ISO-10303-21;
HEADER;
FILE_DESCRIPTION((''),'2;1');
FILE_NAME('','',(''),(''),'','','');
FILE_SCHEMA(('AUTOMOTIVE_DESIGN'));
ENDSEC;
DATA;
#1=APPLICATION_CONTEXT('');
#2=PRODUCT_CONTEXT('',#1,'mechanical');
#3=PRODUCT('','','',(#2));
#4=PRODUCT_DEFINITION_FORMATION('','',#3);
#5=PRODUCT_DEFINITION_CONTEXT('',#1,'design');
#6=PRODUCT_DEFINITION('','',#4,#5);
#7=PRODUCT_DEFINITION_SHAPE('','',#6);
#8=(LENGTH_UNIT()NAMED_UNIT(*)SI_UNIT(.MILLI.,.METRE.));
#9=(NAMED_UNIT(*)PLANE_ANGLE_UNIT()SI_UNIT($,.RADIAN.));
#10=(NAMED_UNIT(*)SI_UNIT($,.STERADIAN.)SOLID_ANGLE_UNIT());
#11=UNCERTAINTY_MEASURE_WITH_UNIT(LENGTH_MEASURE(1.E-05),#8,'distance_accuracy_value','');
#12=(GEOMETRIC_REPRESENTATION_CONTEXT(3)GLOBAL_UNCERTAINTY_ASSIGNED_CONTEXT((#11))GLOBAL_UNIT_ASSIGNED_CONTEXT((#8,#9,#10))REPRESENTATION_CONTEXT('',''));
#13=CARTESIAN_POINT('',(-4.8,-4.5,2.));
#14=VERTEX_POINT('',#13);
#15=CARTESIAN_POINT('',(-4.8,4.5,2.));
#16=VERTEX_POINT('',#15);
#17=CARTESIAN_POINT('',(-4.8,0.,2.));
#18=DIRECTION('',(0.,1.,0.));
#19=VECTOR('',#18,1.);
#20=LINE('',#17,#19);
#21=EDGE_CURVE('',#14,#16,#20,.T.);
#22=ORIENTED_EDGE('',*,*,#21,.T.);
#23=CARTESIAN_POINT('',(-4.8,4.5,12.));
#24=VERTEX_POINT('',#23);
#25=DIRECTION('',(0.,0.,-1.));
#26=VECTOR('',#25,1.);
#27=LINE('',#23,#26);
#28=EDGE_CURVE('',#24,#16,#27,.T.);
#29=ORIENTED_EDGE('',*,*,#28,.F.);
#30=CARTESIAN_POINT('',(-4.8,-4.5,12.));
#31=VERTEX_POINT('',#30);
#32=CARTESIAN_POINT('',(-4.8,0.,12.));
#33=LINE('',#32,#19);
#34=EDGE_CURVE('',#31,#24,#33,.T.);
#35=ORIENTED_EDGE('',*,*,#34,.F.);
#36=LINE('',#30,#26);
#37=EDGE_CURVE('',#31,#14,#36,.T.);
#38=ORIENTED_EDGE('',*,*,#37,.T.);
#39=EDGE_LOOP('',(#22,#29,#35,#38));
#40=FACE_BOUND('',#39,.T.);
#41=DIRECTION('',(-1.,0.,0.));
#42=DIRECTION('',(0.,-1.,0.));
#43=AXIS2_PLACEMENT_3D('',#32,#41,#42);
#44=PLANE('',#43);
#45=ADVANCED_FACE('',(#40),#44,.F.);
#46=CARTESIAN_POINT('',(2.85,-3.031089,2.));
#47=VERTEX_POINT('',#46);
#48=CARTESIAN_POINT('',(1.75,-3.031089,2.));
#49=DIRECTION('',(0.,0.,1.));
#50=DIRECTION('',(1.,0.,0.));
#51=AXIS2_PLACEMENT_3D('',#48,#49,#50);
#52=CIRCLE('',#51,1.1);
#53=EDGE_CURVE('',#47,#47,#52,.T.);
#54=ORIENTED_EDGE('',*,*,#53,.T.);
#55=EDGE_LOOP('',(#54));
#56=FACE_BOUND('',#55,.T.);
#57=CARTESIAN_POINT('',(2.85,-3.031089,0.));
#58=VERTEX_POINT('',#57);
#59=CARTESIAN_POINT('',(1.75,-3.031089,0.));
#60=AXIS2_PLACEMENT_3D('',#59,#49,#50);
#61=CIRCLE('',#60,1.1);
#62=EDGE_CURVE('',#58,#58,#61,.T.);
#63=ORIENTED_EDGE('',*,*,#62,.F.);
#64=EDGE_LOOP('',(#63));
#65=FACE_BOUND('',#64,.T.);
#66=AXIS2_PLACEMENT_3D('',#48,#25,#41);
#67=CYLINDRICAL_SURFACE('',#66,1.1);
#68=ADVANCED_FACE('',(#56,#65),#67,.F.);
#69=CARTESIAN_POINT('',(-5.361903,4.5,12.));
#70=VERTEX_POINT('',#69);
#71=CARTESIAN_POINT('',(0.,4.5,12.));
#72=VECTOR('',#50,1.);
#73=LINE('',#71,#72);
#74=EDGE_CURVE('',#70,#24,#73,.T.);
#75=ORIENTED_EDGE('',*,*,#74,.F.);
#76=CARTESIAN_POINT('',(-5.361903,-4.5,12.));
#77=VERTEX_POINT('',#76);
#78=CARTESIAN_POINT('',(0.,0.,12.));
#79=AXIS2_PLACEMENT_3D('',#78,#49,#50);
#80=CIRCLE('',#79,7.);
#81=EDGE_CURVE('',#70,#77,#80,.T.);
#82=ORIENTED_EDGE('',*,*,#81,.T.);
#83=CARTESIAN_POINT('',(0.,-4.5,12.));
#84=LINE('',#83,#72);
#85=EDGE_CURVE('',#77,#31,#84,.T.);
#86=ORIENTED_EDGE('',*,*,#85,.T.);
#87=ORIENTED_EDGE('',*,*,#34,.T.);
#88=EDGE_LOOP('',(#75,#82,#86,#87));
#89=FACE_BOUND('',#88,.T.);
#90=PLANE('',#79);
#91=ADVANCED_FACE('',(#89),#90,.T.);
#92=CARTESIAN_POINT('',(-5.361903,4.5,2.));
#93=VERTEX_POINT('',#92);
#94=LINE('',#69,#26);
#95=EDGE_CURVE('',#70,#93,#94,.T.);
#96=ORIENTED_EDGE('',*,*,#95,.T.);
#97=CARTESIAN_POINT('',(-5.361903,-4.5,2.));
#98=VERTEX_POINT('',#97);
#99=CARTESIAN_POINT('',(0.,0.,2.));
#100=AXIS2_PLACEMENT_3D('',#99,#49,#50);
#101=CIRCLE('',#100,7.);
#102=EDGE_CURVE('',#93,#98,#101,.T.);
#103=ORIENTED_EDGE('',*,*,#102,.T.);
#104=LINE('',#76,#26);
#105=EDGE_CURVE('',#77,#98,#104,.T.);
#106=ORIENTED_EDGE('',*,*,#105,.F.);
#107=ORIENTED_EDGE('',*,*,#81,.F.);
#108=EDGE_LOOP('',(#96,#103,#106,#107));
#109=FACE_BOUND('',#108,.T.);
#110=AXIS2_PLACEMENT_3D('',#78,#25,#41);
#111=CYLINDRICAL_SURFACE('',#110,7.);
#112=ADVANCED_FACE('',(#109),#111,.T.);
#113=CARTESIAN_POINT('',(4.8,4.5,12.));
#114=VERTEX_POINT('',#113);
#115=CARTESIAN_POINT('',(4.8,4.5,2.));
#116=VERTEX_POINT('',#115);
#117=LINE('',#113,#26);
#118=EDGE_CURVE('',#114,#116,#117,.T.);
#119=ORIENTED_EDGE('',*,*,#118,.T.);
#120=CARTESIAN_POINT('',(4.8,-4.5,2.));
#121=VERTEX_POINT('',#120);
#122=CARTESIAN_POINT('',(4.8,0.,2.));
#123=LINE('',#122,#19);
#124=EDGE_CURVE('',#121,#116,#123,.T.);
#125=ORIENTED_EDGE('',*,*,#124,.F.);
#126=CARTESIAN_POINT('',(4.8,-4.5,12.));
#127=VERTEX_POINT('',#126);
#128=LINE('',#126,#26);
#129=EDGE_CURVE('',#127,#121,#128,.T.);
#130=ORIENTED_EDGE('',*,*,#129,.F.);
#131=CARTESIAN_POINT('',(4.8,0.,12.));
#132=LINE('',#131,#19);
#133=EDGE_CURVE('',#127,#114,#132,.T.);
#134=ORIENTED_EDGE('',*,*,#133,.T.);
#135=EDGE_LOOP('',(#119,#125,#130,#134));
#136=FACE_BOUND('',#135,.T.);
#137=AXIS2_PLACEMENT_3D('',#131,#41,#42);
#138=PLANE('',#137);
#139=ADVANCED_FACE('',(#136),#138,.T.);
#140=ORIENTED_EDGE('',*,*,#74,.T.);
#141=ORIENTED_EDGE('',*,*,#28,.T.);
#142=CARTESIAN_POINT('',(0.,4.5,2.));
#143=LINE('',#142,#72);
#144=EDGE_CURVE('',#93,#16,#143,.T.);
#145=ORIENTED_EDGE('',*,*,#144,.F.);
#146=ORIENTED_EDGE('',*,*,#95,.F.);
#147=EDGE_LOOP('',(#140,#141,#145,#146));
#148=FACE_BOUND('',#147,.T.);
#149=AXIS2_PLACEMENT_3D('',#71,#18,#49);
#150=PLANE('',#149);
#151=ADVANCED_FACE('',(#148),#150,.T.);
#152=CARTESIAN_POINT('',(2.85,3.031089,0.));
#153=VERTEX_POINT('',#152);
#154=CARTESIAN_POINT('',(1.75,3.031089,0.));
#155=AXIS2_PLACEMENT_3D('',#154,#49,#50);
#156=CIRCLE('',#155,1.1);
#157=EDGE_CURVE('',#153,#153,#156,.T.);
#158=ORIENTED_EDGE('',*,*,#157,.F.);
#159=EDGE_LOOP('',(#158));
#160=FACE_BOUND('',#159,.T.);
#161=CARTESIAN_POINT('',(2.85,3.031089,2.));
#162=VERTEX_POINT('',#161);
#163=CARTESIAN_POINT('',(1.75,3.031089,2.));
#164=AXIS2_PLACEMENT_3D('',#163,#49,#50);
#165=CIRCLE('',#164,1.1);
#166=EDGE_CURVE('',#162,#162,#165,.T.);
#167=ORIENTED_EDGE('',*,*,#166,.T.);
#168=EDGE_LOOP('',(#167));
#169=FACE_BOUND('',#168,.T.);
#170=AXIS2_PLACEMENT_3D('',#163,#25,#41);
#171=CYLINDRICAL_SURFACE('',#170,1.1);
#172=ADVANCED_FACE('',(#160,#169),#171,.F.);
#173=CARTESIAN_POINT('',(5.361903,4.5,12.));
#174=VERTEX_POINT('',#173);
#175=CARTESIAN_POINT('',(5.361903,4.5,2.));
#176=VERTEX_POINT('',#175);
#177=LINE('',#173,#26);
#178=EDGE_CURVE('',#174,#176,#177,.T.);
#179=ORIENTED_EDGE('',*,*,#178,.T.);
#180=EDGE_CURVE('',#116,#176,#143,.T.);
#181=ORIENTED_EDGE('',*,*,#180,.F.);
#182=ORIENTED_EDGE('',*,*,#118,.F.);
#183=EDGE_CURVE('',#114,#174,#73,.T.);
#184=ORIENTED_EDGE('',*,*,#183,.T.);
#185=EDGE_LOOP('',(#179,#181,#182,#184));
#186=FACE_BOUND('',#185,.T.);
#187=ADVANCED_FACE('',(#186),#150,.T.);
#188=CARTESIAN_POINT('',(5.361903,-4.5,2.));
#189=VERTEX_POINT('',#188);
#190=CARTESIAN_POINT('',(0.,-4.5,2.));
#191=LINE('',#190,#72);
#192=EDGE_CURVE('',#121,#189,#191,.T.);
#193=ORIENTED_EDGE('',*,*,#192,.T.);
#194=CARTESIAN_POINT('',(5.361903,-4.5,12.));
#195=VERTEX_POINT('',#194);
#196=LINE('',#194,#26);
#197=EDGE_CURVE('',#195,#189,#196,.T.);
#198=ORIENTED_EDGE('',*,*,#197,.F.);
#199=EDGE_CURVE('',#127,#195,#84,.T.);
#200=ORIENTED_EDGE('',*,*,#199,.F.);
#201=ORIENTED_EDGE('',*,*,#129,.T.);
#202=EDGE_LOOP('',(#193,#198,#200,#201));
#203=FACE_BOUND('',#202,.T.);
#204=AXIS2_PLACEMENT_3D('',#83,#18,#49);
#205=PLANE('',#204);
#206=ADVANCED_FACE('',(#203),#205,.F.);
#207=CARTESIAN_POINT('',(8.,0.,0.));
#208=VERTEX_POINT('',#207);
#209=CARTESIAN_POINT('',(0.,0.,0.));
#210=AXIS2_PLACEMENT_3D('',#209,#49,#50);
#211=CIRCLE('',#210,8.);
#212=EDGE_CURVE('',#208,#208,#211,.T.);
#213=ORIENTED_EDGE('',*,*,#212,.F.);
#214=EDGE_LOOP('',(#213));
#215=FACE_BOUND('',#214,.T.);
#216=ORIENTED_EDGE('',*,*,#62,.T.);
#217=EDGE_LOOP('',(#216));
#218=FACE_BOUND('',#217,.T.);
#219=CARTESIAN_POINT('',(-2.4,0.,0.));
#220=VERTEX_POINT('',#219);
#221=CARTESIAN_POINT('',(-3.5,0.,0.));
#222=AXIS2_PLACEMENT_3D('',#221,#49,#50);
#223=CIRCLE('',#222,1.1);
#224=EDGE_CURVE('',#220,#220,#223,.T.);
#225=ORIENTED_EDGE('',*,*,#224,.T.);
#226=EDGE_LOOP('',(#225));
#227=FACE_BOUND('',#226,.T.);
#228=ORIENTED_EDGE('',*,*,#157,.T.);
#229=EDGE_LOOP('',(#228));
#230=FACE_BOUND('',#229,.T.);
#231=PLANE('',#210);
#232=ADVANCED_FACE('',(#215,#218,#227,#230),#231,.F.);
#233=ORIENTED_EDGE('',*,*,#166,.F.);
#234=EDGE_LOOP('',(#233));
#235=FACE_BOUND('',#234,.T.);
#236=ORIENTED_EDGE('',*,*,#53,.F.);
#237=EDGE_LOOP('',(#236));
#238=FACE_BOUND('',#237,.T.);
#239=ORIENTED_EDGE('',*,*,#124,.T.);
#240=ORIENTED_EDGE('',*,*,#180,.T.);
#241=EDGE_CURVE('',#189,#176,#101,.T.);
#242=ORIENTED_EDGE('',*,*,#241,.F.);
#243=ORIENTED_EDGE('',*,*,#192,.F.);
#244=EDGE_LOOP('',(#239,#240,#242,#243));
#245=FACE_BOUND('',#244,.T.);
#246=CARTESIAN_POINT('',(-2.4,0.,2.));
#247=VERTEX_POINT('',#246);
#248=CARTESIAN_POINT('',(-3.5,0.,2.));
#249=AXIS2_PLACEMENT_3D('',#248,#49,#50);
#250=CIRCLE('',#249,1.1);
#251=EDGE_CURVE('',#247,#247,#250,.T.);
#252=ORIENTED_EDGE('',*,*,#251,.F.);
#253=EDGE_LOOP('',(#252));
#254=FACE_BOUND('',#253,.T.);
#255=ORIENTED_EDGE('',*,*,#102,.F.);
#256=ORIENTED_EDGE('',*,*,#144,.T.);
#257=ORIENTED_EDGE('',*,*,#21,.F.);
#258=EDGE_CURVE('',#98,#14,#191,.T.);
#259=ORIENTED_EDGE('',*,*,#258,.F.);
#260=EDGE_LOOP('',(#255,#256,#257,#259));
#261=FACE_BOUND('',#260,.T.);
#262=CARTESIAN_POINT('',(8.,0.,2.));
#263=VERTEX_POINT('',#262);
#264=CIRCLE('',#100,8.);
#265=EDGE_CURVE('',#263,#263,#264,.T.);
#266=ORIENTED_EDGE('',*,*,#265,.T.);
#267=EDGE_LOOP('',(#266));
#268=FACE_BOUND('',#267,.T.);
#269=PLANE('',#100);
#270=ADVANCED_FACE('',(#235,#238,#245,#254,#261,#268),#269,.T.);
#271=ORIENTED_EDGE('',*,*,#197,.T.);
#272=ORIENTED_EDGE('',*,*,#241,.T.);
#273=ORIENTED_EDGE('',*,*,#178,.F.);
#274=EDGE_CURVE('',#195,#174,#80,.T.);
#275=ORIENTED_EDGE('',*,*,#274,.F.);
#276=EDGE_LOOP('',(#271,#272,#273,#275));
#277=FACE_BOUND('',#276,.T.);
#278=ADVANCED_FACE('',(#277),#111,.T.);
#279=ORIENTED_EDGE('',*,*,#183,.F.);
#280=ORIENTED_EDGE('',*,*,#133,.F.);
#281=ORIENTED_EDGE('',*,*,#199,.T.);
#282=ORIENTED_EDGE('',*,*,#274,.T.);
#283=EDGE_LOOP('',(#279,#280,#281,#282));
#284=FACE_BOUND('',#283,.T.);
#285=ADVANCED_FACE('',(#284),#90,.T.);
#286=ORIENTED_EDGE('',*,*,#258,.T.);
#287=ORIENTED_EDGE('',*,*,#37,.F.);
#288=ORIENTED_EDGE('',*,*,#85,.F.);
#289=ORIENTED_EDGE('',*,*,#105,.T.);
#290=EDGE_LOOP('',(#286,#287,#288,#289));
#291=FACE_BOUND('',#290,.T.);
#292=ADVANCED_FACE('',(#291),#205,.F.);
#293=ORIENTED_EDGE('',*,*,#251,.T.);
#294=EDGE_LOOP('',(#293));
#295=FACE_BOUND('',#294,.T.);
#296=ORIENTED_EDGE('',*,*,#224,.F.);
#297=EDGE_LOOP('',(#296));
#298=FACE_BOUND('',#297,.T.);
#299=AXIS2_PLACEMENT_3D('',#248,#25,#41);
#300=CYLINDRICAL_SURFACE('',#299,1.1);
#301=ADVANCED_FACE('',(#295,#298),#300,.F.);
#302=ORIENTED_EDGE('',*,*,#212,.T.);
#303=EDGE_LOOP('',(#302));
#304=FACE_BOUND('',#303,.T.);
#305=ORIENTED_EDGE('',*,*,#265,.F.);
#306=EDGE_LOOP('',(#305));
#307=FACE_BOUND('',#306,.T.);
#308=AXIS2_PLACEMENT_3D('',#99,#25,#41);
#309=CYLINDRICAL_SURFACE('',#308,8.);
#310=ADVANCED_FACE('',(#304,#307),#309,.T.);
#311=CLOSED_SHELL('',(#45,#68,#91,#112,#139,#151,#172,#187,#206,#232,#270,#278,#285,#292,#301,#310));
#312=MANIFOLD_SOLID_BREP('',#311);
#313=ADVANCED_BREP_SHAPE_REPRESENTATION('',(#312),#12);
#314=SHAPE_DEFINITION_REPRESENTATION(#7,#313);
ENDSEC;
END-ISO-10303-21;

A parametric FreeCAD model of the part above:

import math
import FreeCAD as App
import Part
import Sketcher

V = App.Vector

doc = App.newDocument("Part")
params = doc.addObject("Spreadsheet::Sheet", "Params")
for row, (alias, value) in enumerate([
    ("sketch1_diameter", "16 mm"),
    ("sketch1_diameter2", "2.2 mm"),
    ("pad1_length", "2 mm"),
    ("sketch2_radius", "7 mm"),
    ("sketch2_height", "9 mm"),
    ("pad2_length", "10 mm"),
], start=1):
    params.set(f"A{row}", alias)
    params.set(f"B{row}", "=" + value)
    params.setAlias(f"B{row}", alias)

body = doc.addObject("PartDesign::Body", "Body")

sketch1 = body.newObject("Sketcher::SketchObject", "Sketch")
sketch1.AttachmentSupport = (doc.getObject("XY_Plane"), [""])
sketch1.MapMode = "FlatFace"
sketch1.addGeometry([
    Part.Circle(V(0, 0, 0), V(0, 0, 1), 8),
    Part.Circle(V(1.75, -3.031089, 0), V(0, 0, 1), 1.1),
    Part.Circle(V(-3.5, 0, 0), V(0, 0, 1), 1.1),
    Part.Circle(V(1.75, 3.031089, 0), V(0, 0, 1), 1.1),
], False)
sketch1.addConstraint([
    Sketcher.Constraint("Coincident", 0, 3, -1, 1),
    Sketcher.Constraint("Equal", 1, 2),
    Sketcher.Constraint("Equal", 2, 3),
    Sketcher.Constraint("Symmetric", 1, 3, 3, 3, -1),
    Sketcher.Constraint("PointOnObject", 2, 3, -1),
    Sketcher.Constraint("Diameter", 0, 16.0),
    Sketcher.Constraint("Diameter", 1, 2.2),
    Sketcher.Constraint("DistanceX", 2, 3, -1, 1, 3.5),
    Sketcher.Constraint("DistanceX", -1, 1, 1, 3, 1.75),
    Sketcher.Constraint("DistanceY", 1, 3, -1, 1, 3.031089),
])
sketch1.setExpression("Constraints[5]", "Params.sketch1_diameter")
sketch1.setExpression("Constraints[6]", "Params.sketch1_diameter2")
pad1 = body.newObject("PartDesign::Pad", "Pad")
pad1.Profile = sketch1
pad1.setExpression("Length", "Params.pad1_length")

sketch2 = body.newObject("Sketcher::SketchObject", "Sketch001")
sketch2.AttachmentSupport = (doc.getObject("XY_Plane"), [""])
sketch2.MapMode = "FlatFace"
sketch2.AttachmentOffset = App.Placement(V(0, 0, 2), App.Rotation())
sketch2.addGeometry([
    Part.LineSegment(V(-4.8, 4.5, 0), V(-5.361903, 4.5, 0)),
    Part.ArcOfCircle(Part.Circle(V(0, 0, 0), V(0, 0, 1), 7), math.radians(139.994799), math.radians(220.005201)),
    Part.LineSegment(V(-5.361903, -4.5, 0), V(-4.8, -4.5, 0)),
    Part.LineSegment(V(-4.8, -4.5, 0), V(-4.8, 4.5, 0)),
    Part.ArcOfCircle(Part.Circle(V(0, 0, 0), V(0, 0, 1), 7), math.radians(0), math.radians(40.005201)),
    Part.LineSegment(V(5.361903, 4.5, 0), V(4.8, 4.5, 0)),
    Part.LineSegment(V(4.8, 4.5, 0), V(4.8, -4.5, 0)),
    Part.LineSegment(V(4.8, -4.5, 0), V(5.361903, -4.5, 0)),
    Part.ArcOfCircle(Part.Circle(V(0, 0, 0), V(0, 0, 1), 7), math.radians(-40.005201), math.radians(0)),
], False)
sketch2.addConstraint([
    Sketcher.Constraint("Coincident", 0, 2, 1, 1),
    Sketcher.Constraint("Coincident", 1, 2, 2, 1),
    Sketcher.Constraint("Coincident", 2, 2, 3, 1),
    Sketcher.Constraint("Coincident", 3, 2, 0, 1),
    Sketcher.Constraint("Coincident", 4, 2, 5, 1),
    Sketcher.Constraint("Coincident", 5, 2, 6, 1),
    Sketcher.Constraint("Coincident", 6, 2, 7, 1),
    Sketcher.Constraint("Coincident", 7, 2, 8, 1),
    Sketcher.Constraint("Tangent", 8, 2, 4, 1),
    Sketcher.Constraint("Horizontal", 0),
    Sketcher.Constraint("Horizontal", 2),
    Sketcher.Constraint("Vertical", 3),
    Sketcher.Constraint("Horizontal", 5),
    Sketcher.Constraint("Vertical", 6),
    Sketcher.Constraint("Horizontal", 7),
    Sketcher.Constraint("Coincident", 1, 3, -1, 1),
    Sketcher.Constraint("Coincident", 4, 3, -1, 1),
    Sketcher.Constraint("Equal", 1, 4),
    Sketcher.Constraint("Equal", 4, 8),
    Sketcher.Constraint("Symmetric", 2, 2, 5, 2, -1, 1),
    Sketcher.Constraint("PointOnObject", 8, 2, -1),
    Sketcher.Constraint("Horizontal", 3, 2, 4, 2),
    Sketcher.Constraint("Horizontal", 2, 2, 6, 2),
    Sketcher.Constraint("Radius", 1, 7.0),
    Sketcher.Constraint("DistanceY", 3, 1, 3, 2, 9.0),
    Sketcher.Constraint("DistanceX", 2, 2, -1, 1, 4.8),
])
sketch2.setExpression("Constraints[23]", "Params.sketch2_radius")
sketch2.setExpression("Constraints[24]", "Params.sketch2_height")
pad2 = body.newObject("PartDesign::Pad", "Pad001")
pad2.Profile = sketch2
pad2.setExpression("Length", "Params.pad2_length")

doc.recompute()
